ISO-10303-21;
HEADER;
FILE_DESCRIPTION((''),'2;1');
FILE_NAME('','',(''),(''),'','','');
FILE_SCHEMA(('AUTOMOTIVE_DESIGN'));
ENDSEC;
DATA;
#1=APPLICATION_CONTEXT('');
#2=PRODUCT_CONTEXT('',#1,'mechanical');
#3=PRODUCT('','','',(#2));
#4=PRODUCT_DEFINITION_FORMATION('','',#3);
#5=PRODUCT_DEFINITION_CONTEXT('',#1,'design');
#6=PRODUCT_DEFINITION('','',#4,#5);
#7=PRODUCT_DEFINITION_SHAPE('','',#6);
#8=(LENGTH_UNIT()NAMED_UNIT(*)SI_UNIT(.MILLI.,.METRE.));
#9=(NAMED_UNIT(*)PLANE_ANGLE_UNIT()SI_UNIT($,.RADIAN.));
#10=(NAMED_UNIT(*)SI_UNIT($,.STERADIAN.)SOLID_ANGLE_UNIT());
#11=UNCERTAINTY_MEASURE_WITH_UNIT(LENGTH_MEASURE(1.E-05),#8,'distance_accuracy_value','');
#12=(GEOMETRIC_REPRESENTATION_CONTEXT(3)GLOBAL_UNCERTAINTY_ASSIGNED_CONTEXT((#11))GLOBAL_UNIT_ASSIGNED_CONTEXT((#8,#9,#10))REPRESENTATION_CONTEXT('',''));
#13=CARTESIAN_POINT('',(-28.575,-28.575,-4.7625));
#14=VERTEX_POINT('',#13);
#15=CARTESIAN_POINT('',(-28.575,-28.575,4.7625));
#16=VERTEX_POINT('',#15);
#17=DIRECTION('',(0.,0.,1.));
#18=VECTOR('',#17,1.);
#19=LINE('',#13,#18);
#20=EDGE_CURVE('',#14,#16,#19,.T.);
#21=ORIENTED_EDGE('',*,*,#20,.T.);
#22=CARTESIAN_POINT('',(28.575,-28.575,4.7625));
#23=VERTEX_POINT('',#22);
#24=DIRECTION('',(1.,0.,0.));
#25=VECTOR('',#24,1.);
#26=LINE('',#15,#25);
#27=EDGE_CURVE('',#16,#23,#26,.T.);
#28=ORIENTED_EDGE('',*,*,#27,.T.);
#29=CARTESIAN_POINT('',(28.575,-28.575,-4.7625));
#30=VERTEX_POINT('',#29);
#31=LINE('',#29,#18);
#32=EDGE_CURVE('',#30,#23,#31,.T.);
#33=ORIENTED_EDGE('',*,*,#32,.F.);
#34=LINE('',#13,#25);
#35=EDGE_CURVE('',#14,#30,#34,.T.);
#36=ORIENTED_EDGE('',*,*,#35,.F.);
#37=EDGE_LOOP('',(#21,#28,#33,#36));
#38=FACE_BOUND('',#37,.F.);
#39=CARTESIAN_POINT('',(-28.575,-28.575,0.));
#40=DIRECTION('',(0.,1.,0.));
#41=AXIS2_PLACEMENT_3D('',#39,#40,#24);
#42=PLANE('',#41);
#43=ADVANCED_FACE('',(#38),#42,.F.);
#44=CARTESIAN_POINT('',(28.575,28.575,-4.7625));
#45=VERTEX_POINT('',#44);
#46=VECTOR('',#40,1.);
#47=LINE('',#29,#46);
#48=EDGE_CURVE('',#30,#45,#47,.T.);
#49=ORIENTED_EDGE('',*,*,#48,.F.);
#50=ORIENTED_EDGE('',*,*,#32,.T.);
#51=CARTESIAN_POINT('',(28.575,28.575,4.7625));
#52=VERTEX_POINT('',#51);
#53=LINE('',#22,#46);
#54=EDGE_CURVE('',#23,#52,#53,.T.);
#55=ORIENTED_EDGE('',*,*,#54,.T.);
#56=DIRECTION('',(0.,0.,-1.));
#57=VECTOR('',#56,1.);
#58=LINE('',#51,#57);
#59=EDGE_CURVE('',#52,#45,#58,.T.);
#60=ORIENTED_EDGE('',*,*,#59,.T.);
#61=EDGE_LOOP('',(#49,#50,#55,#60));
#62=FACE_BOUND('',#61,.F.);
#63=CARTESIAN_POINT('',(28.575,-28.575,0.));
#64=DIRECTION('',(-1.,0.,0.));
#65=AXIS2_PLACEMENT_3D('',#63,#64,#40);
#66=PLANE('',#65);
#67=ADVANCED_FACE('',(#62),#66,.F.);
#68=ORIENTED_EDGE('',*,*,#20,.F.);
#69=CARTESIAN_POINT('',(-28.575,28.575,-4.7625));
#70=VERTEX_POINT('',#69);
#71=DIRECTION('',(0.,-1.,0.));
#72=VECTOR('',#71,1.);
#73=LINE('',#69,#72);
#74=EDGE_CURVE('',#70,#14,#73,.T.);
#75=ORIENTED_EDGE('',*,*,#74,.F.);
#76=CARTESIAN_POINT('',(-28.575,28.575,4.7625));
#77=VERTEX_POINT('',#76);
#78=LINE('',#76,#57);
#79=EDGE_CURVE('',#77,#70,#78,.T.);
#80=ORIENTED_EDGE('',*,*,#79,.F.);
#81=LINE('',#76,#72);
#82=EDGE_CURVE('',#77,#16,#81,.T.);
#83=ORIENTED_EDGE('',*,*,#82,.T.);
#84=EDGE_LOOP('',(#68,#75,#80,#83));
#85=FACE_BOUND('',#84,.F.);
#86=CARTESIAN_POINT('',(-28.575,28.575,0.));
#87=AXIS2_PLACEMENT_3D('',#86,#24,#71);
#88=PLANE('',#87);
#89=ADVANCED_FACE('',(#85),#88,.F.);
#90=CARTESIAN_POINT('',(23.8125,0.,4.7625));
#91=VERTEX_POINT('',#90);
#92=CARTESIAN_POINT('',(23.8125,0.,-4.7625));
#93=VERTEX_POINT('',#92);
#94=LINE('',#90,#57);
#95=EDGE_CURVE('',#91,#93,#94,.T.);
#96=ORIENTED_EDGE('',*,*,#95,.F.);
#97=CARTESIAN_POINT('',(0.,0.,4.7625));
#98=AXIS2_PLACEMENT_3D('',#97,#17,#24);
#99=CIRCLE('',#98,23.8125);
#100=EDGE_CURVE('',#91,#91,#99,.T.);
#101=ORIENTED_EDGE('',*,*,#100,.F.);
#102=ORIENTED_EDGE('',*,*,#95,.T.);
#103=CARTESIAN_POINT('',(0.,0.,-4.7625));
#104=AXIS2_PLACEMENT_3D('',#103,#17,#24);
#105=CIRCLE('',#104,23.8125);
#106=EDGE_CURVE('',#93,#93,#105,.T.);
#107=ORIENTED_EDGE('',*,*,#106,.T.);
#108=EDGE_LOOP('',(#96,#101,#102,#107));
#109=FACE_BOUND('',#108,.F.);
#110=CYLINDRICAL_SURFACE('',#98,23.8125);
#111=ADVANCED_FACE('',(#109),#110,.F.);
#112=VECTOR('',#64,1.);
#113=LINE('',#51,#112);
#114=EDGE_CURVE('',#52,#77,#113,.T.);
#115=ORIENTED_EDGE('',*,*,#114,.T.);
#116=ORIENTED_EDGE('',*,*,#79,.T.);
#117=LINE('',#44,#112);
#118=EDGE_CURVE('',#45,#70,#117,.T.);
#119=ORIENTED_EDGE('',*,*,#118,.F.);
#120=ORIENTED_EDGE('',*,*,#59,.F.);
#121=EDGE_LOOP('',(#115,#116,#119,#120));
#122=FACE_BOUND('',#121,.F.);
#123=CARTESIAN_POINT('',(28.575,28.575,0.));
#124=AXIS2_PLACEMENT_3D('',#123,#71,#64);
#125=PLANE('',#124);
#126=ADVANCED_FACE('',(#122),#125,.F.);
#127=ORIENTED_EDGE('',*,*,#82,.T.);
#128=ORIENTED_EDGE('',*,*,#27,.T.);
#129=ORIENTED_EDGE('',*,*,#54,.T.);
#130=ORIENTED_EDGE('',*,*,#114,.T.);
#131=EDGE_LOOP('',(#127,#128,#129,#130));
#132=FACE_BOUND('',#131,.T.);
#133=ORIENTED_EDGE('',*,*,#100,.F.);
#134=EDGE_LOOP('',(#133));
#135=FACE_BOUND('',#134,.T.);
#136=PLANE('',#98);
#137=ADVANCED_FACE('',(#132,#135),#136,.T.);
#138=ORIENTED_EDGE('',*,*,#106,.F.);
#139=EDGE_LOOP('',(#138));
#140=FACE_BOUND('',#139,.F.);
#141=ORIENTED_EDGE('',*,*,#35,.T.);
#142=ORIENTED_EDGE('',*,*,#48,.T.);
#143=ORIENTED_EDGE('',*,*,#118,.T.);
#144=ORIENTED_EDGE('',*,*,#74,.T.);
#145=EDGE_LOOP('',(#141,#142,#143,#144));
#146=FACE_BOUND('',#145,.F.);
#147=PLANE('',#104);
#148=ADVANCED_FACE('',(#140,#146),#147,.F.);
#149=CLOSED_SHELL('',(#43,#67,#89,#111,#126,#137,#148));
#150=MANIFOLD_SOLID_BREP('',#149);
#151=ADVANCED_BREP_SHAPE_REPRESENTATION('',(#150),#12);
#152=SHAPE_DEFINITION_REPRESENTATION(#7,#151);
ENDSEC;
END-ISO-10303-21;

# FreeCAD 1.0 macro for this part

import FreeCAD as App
import Part
import Sketcher
from FreeCAD import Vector
Q = App.Units.Quantity

doc = App.newDocument("Part")
body = doc.addObject("PartDesign::Body", "Body")

sketch1 = doc.addObject("Sketcher::SketchObject", "Sketch")
body.addObject(sketch1)
sketch1.AttachmentSupport = (doc.XY_Plane, [""])
sketch1.MapMode = "FlatFace"
sketch1.addGeometry([
    Part.LineSegment(Vector(-28.575, 28.575, 0), Vector(-28.575, -28.575, 0)),
    Part.LineSegment(Vector(-28.575, -28.575, 0), Vector(28.575, -28.575, 0)),
    Part.LineSegment(Vector(28.575, -28.575, 0), Vector(28.575, 28.575, 0)),
    Part.LineSegment(Vector(28.575, 28.575, 0), Vector(-28.575, 28.575, 0)),
], False)
sketch1.addConstraint([
    Sketcher.Constraint("Coincident", 0, 2, 1, 1),
    Sketcher.Constraint("Coincident", 1, 2, 2, 1),
    Sketcher.Constraint("Coincident", 2, 2, 3, 1),
    Sketcher.Constraint("Coincident", 3, 2, 0, 1),
    Sketcher.Constraint("Vertical", 0),
    Sketcher.Constraint("Horizontal", 1),
    Sketcher.Constraint("Vertical", 2),
    Sketcher.Constraint("Horizontal", 3),
    Sketcher.Constraint("Symmetric", 0, 2, 2, 2, -1, 1),
    Sketcher.Constraint("Equal", 3, 0),
    Sketcher.Constraint("DistanceX", 1, 1, 1, 2, Q("2.25 in")),
])
pad1 = doc.addObject("PartDesign::Pad", "Pad")
body.addObject(pad1)
pad1.Profile = sketch1
pad1.Length = Q("0.375 in")
pad1.Midplane = True

sketch2 = doc.addObject("Sketcher::SketchObject", "Sketch001")
body.addObject(sketch2)
sketch2.AttachmentSupport = (doc.XY_Plane, [""])
sketch2.MapMode = "FlatFace"
sketch2.AttachmentOffset = App.Placement(Vector(0, 0, 0.1875 * 25.4), App.Rotation())
sketch2.addGeometry(Part.Circle(Vector(0, 0, 0), Vector(0, 0, 1), 23.8125), False)
sketch2.addConstraint([
    Sketcher.Constraint("Coincident", 0, 3, -1, 1),
    Sketcher.Constraint("Diameter", 0, Q("1.875 in")),
])
pocket1 = doc.addObject("PartDesign::Pocket", "Pocket")
body.addObject(pocket1)
pocket1.Profile = sketch2
pocket1.Type = "ThroughAll"

doc.recompute()
